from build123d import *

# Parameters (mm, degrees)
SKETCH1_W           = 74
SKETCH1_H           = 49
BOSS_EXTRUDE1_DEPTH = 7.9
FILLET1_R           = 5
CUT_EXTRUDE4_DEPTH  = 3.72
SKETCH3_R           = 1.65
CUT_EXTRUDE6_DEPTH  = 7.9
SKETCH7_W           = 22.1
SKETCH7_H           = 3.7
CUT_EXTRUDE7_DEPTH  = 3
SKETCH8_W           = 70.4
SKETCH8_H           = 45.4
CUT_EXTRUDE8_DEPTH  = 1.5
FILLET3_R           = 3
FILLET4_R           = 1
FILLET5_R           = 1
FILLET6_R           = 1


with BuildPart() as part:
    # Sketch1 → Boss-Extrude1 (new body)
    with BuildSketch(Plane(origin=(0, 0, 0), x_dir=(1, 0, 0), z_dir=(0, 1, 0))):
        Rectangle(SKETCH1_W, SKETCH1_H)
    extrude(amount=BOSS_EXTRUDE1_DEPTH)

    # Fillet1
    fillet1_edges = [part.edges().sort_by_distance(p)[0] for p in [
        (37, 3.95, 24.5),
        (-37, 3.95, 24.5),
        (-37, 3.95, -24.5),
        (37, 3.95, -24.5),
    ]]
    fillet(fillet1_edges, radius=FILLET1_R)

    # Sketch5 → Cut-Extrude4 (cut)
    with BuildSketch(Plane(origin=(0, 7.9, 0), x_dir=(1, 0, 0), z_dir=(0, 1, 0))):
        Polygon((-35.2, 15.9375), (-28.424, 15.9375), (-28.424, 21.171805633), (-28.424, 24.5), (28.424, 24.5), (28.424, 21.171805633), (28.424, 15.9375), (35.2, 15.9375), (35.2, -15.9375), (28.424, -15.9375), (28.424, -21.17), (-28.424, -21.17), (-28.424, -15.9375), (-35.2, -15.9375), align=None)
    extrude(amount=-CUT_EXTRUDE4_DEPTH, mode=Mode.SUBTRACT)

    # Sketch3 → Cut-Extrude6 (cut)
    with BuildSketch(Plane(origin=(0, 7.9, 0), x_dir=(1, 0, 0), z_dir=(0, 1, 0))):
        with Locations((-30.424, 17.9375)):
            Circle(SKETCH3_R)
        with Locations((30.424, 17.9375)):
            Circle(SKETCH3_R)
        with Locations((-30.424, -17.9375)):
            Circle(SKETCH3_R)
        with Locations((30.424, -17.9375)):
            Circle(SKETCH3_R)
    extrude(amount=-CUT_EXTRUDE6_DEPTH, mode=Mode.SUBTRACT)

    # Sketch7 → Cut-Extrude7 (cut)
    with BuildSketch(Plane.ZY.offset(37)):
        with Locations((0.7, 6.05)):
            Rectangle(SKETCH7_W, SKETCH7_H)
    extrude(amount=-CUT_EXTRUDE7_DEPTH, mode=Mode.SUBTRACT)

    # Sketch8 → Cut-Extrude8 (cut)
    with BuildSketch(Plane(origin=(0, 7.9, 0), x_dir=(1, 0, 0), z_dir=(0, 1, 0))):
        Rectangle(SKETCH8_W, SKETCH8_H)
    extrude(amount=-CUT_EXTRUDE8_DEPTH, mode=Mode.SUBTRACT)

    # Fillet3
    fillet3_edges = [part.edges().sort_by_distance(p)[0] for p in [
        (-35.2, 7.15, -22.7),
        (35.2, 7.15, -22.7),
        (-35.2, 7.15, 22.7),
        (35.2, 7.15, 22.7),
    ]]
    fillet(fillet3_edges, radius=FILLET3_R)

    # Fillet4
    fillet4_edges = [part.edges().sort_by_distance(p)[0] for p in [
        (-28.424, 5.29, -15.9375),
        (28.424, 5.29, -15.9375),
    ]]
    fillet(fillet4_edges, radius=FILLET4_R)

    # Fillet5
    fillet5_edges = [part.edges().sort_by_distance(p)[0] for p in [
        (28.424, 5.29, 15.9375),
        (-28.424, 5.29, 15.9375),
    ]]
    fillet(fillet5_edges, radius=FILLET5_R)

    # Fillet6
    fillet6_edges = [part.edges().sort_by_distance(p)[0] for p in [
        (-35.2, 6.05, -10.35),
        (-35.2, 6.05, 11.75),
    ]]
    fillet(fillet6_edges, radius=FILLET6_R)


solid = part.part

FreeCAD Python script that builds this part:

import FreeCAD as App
import Part
import Sketcher

V = App.Vector
Q = App.Units.Quantity


def edges_at(feature, points):
    """Names of the edges that pass closest to the given points."""
    edges = feature.Shape.Edges
    near = lambda p: min(range(len(edges)), key=lambda i: edges[i].distToShape(Part.Vertex(*p))[0])
    return sorted({f"Edge{near(p) + 1}" for p in points})

doc = App.newDocument("Part")
body = doc.addObject("PartDesign::Body", "Body")

# Sketch on XZ plane
sketch1 = body.newObject("Sketcher::SketchObject", "Sketch")
sketch1.AttachmentSupport = (doc.getObject("XZ_Plane"), [""])
sketch1.MapMode = "FlatFace"
sketch1.addGeometry([
    Part.LineSegment(V(-37, -24, 0), V(-37, 24, 0)),
    Part.LineSegment(V(-37, 24, 0), V(37, 24, 0)),
    Part.LineSegment(V(37, 24, 0), V(37, -24, 0)),
    Part.LineSegment(V(37, -24, 0), V(-37, -24, 0)),
], False)
sketch1.addConstraint([
    Sketcher.Constraint("Coincident", 0, 2, 1, 1),
    Sketcher.Constraint("Coincident", 1, 2, 2, 1),
    Sketcher.Constraint("Coincident", 2, 2, 3, 1),
    Sketcher.Constraint("Coincident", 3, 2, 0, 1),
    Sketcher.Constraint("Vertical", 0),
    Sketcher.Constraint("Horizontal", 1),
    Sketcher.Constraint("Vertical", 2),
    Sketcher.Constraint("Horizontal", 3),
    Sketcher.Constraint("Symmetric", 0, 2, 2, 2, -1, 1),
    Sketcher.Constraint("DistanceX", 1, 1, 1, 2, Q("74 mm")),
    Sketcher.Constraint("DistanceY", 0, 1, 0, 2, Q("49 mm")),
])
pad1 = body.newObject("PartDesign::Pad", "Pad")
pad1.Profile = sketch1
pad1.Length = 7.9
pad1.Reversed = True
doc.recompute()

fillet = body.newObject("PartDesign::Fillet", "Fillet")
fillet.Base = (pad1, edges_at(pad1, [
    (37, 3.95, 24.5),
    (-37, 3.95, 24.5),
    (-37, 3.95, -24.5),
    (37, 3.95, -24.5),
]))
fillet.Radius = 5

# Sketch on XZ plane
sketch2 = body.newObject("Sketcher::SketchObject", "Sketch001")
sketch2.AttachmentSupport = (doc.getObject("XZ_Plane"), [""])
sketch2.MapMode = "FlatFace"
sketch2.AttachmentOffset = App.Placement(V(0, 0, -7.9), App.Rotation())
sketch2.addGeometry([
    Part.LineSegment(V(-28, -16, 0), V(-35, -16, 0)),  # 0
    Part.LineSegment(V(-35, -16, 0), V(-35, 16, 0)),  # 1
    Part.LineSegment(V(-35, 16, 0), V(-28, 16, 0)),  # 2
    Part.LineSegment(V(-28, 16, 0), V(-28, 21, 0)),  # 3
    Part.LineSegment(V(-28, 21, 0), V(28, 21, 0)),  # 4
    Part.LineSegment(V(28, 21, 0), V(28, 16, 0)),  # 5
    Part.LineSegment(V(28, 16, 0), V(35, 16, 0)),  # 6
    Part.LineSegment(V(35, 16, 0), V(35, -16, 0)),  # 7
    Part.LineSegment(V(35, -16, 0), V(28, -16, 0)),  # 8
    Part.LineSegment(V(28, -16, 0), V(28, -24, 0)),  # 9
    Part.LineSegment(V(28, -24, 0), V(-28, -24, 0)),  # 10
    Part.LineSegment(V(-28, -24, 0), V(-28, -16, 0)),  # 11
], False)
sketch2.addConstraint([
    Sketcher.Constraint("Coincident", 0, 2, 1, 1),
    Sketcher.Constraint("Coincident", 1, 2, 2, 1),
    Sketcher.Constraint("Coincident", 2, 2, 3, 1),
    Sketcher.Constraint("Coincident", 3, 2, 4, 1),
    Sketcher.Constraint("Coincident", 4, 2, 5, 1),
    Sketcher.Constraint("Coincident", 5, 2, 6, 1),
    Sketcher.Constraint("Coincident", 6, 2, 7, 1),
    Sketcher.Constraint("Coincident", 7, 2, 8, 1),
    Sketcher.Constraint("Coincident", 8, 2, 9, 1),
    Sketcher.Constraint("Coincident", 9, 2, 10, 1),
    Sketcher.Constraint("Coincident", 10, 2, 11, 1),
    Sketcher.Constraint("Coincident", 11, 2, 0, 1),
    Sketcher.Constraint("Horizontal", 0),
    Sketcher.Constraint("Vertical", 1),
    Sketcher.Constraint("Horizontal", 2),
    Sketcher.Constraint("Vertical", 3),
    Sketcher.Constraint("Horizontal", 4),
    Sketcher.Constraint("Vertical", 5),
    Sketcher.Constraint("Horizontal", 6),
    Sketcher.Constraint("Vertical", 7),
    Sketcher.Constraint("Horizontal", 8),
    Sketcher.Constraint("Vertical", 9),
    Sketcher.Constraint("Horizontal", 10),
    Sketcher.Constraint("Vertical", 11),
    Sketcher.Constraint("Symmetric", 0, 2, 6, 2, -1, 1),
    Sketcher.Constraint("Symmetric", 2, 2, 8, 2, -1, 1),
    Sketcher.Constraint("Symmetric", 2, 2, 5, 2, -2),
    Sketcher.Constraint("Vertical", 3, 2, 10, 2),
    Sketcher.Constraint("DistanceX", 0, 2, -1, 1, Q("35.2 mm")),
    Sketcher.Constraint("DistanceY", 9, 2, -1, 1, Q("24.5 mm")),
    Sketcher.Constraint("DistanceX", 0, 2, 0, 1, Q("6.776 mm")),
    Sketcher.Constraint("DistanceY", 1, 1, 1, 2, Q("31.875 mm")),
    Sketcher.Constraint("DistanceY", -1, 1, 3, 2, Q("21.17 mm")),
])
pocket1 = body.newObject("PartDesign::Pocket", "Pocket")
pocket1.Profile = sketch2
pocket1.Length = 3.72
pocket1.Reversed = True

# Sketch on XZ plane
sketch3 = body.newObject("Sketcher::SketchObject", "Sketch002")
sketch3.AttachmentSupport = (doc.getObject("XZ_Plane"), [""])
sketch3.MapMode = "FlatFace"
sketch3.AttachmentOffset = App.Placement(V(0, 0, -7.9), App.Rotation())
sketch3.addGeometry([
    Part.Circle(V(-30.4, -17.9, 0), V(0, 0, 1), 1.6),
    Part.Circle(V(30.4, -17.9, 0), V(0, 0, 1), 1.6),
    Part.Circle(V(-30.4, 17.9, 0), V(0, 0, 1), 1.6),
    Part.Circle(V(30.4, 17.9, 0), V(0, 0, 1), 1.6),
], False)
sketch3.addConstraint([
    Sketcher.Constraint("Equal", 0, 1),
    Sketcher.Constraint("Equal", 1, 2),
    Sketcher.Constraint("Equal", 2, 3),
    Sketcher.Constraint("Symmetric", 1, 3, 2, 3, -1, 1),
    Sketcher.Constraint("Symmetric", 0, 3, 3, 3, -1, 1),
    Sketcher.Constraint("Symmetric", 0, 3, 1, 3, -2),
    Sketcher.Constraint("Diameter", 0, Q("3.3 mm")),
    Sketcher.Constraint("DistanceX", 0, 3, -1, 1, Q("30.424 mm")),
    Sketcher.Constraint("DistanceY", 0, 3, 2, 3, Q("35.875 mm")),
])
pocket2 = body.newObject("PartDesign::Pocket", "Pocket001")
pocket2.Profile = sketch3
pocket2.Length = 7.9
pocket2.Reversed = True

# Sketch on YZ plane
sketch4 = body.newObject("Sketcher::SketchObject", "Sketch003")
sketch4.AttachmentSupport = (doc.getObject("YZ_Plane"), [""])
sketch4.MapMode = "FlatFace"
sketch4.AttachmentOffset = App.Placement(V(0, 0, -37), App.Rotation())
sketch4.addGeometry([
    Part.LineSegment(V(7.9, -10.3, 0), V(4.2, -10.3, 0)),
    Part.LineSegment(V(4.2, -10.3, 0), V(4.2, 11.8, 0)),
    Part.LineSegment(V(4.2, 11.8, 0), V(7.9, 11.8, 0)),
    Part.LineSegment(V(7.9, 11.8, 0), V(7.9, -10.3, 0)),
], False)
sketch4.addConstraint([
    Sketcher.Constraint("Coincident", 0, 2, 1, 1),
    Sketcher.Constraint("Coincident", 1, 2, 2, 1),
    Sketcher.Constraint("Coincident", 2, 2, 3, 1),
    Sketcher.Constraint("Coincident", 3, 2, 0, 1),
    Sketcher.Constraint("Horizontal", 0),
    Sketcher.Constraint("Vertical", 1),
    Sketcher.Constraint("Horizontal", 2),
    Sketcher.Constraint("Vertical", 3),
    Sketcher.Constraint("DistanceX", 0, 2, 0, 1, Q("3.7 mm")),
    Sketcher.Constraint("DistanceY", 1, 1, 1, 2, Q("22.1 mm")),
    Sketcher.Constraint("DistanceX", -1, 1, 0, 2, Q("4.2 mm")),
    Sketcher.Constraint("DistanceY", 0, 2, -1, 1, Q("10.35 mm")),
])
pocket3 = body.newObject("PartDesign::Pocket", "Pocket002")
pocket3.Profile = sketch4
pocket3.Length = 3
pocket3.Reversed = True

# Sketch on XZ plane
sketch5 = body.newObject("Sketcher::SketchObject", "Sketch004")
sketch5.AttachmentSupport = (doc.getObject("XZ_Plane"), [""])
sketch5.MapMode = "FlatFace"
sketch5.AttachmentOffset = App.Placement(V(0, 0, -7.9), App.Rotation())
sketch5.addGeometry([
    Part.LineSegment(V(-35, -23, 0), V(-35, 23, 0)),
    Part.LineSegment(V(-35, 23, 0), V(35, 23, 0)),
    Part.LineSegment(V(35, 23, 0), V(35, -23, 0)),
    Part.LineSegment(V(35, -23, 0), V(-35, -23, 0)),
], False)
sketch5.addConstraint([
    Sketcher.Constraint("Coincident", 0, 2, 1, 1),
    Sketcher.Constraint("Coincident", 1, 2, 2, 1),
    Sketcher.Constraint("Coincident", 2, 2, 3, 1),
    Sketcher.Constraint("Coincident", 3, 2, 0, 1),
    Sketcher.Constraint("Vertical", 0),
    Sketcher.Constraint("Horizontal", 1),
    Sketcher.Constraint("Vertical", 2),
    Sketcher.Constraint("Horizontal", 3),
    Sketcher.Constraint("Symmetric", 0, 2, 2, 2, -1, 1),
    Sketcher.Constraint("DistanceX", 1, 1, 1, 2, Q("70.4 mm")),
    Sketcher.Constraint("DistanceY", 0, 1, 0, 2, Q("45.4 mm")),
])
pocket4 = body.newObject("PartDesign::Pocket", "Pocket003")
pocket4.Profile = sketch5
pocket4.Length = 1.5
pocket4.Reversed = True
doc.recompute()

fillet2 = body.newObject("PartDesign::Fillet", "Fillet001")
fillet2.Base = (pocket4, edges_at(pocket4, [
    (-35.2, 7.15, -22.7),
    (35.2, 7.15, -22.7),
    (-35.2, 7.15, 22.7),
    (35.2, 7.15, 22.7),
]))
fillet2.Radius = 3
doc.recompute()

fillet3 = body.newObject("PartDesign::Fillet", "Fillet002")
fillet3.Base = (fillet2, edges_at(fillet2, [(-28.424, 5.29, -15.938), (28.424, 5.29, -15.938)]))
fillet3.Radius = 1
doc.recompute()

fillet4 = body.newObject("PartDesign::Fillet", "Fillet003")
fillet4.Base = (fillet3, edges_at(fillet3, [(28.424, 5.29, 15.938), (-28.424, 5.29, 15.938)]))
fillet4.Radius = 1
doc.recompute()

fillet5 = body.newObject("PartDesign::Fillet", "Fillet004")
fillet5.Base = (fillet4, edges_at(fillet4, [(-35.2, 6.05, -10.35), (-35.2, 6.05, 11.75)]))
fillet5.Radius = 1

doc.recompute()
